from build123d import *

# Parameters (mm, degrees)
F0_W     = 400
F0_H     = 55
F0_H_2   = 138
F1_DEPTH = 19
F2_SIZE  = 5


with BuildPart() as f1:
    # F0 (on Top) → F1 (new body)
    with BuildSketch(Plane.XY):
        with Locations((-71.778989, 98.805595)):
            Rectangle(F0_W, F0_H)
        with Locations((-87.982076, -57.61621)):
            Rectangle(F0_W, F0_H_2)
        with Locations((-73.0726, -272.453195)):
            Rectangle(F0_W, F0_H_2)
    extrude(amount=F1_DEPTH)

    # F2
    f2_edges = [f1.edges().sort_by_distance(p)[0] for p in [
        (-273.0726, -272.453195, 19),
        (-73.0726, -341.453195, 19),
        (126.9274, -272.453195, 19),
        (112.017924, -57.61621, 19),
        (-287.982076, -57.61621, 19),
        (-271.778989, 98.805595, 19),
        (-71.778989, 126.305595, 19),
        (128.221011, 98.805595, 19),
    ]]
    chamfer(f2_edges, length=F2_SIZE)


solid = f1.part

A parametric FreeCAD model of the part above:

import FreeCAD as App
import Part
import Sketcher

V = App.Vector


def edges_at(feature, points):
    """Names of the edges that pass closest to the given points."""
    edges = feature.Shape.Edges
    near = lambda p: min(range(len(edges)), key=lambda i: edges[i].distToShape(Part.Vertex(*p))[0])
    return sorted({f"Edge{near(p) + 1}" for p in points})


def add_polygon(sketch, points):
    """Adds a closed chain of lines whose ends are joined by coincident constraints."""
    first, n = sketch.GeometryCount, len(points)
    for a, b in zip(points, points[1:] + points[:1]):
        sketch.addGeometry(Part.LineSegment(App.Vector(*a, 0), App.Vector(*b, 0)), False)
    for i in range(n):
        sketch.addConstraint(Sketcher.Constraint("Coincident", first + i, 2, first + (i + 1) % n, 1))

doc = App.newDocument("Part")
body = doc.addObject("PartDesign::Body", "Body")
body.AllowCompound = True

# Sketch on XY plane
sketch1 = body.newObject("Sketcher::SketchObject", "Sketch")
sketch1.AttachmentSupport = (doc.getObject("XY_Plane"), [""])
sketch1.MapMode = "FlatFace"
add_polygon(sketch1, [(-272, 126), (-272, 71), (128, 71), (128, 126)])  # lines 0-3
add_polygon(sketch1, [(-288, 11), (-288, -127), (112, -127), (112, 11)])  # lines 4-7
add_polygon(sketch1, [(-273, -203), (-273, -341), (127, -341), (127, -203)])  # lines 8-11
sketch1.addConstraint(Sketcher.Constraint("Vertical", 0))
sketch1.addConstraint(Sketcher.Constraint("Horizontal", 1))
sketch1.addConstraint(Sketcher.Constraint("Vertical", 2))
sketch1.addConstraint(Sketcher.Constraint("Horizontal", 3))
sketch1.addConstraint(Sketcher.Constraint("Vertical", 4))
sketch1.addConstraint(Sketcher.Constraint("Horizontal", 5))
sketch1.addConstraint(Sketcher.Constraint("Vertical", 6))
sketch1.addConstraint(Sketcher.Constraint("Horizontal", 7))
sketch1.addConstraint(Sketcher.Constraint("Vertical", 8))
sketch1.addConstraint(Sketcher.Constraint("Horizontal", 9))
sketch1.addConstraint(Sketcher.Constraint("Vertical", 10))
sketch1.addConstraint(Sketcher.Constraint("Horizontal", 11))
sketch1.addConstraint(Sketcher.Constraint("Equal", 3, 5))
sketch1.addConstraint(Sketcher.Constraint("Equal", 7, 9))
sketch1.addConstraint(Sketcher.Constraint("Equal", 6, 8))
sketch1.addConstraint(Sketcher.Constraint("DistanceX", 1, 1, 1, 2, 400.0))
sketch1.addConstraint(Sketcher.Constraint("DistanceY", 0, 2, 0, 1, 55.0))
sketch1.addConstraint(Sketcher.Constraint("DistanceY", 4, 2, 4, 1, 138.0))
sketch1.addConstraint(Sketcher.Constraint("DistanceX", 8, 2, -1, 1, 273.0726))
sketch1.addConstraint(Sketcher.Constraint("DistanceX", 0, 2, -1, 1, 271.778989))
sketch1.addConstraint(Sketcher.Constraint("DistanceY", 4, 2, -1, 1, 126.61621))
sketch1.addConstraint(Sketcher.Constraint("DistanceY", 8, 2, 0, 2, 412.75879))
sketch1.addConstraint(Sketcher.Constraint("DistanceY", -1, 1, 0, 2, 71.305595))
sketch1.addConstraint(Sketcher.Constraint("DistanceX", 4, 2, -1, 1, 287.982076))
pad1 = body.newObject("PartDesign::Pad", "Pad")
pad1.Profile = sketch1
pad1.Length = 19
doc.recompute()

chamfer = body.newObject("PartDesign::Chamfer", "Chamfer")
chamfer.Base = (pad1, edges_at(pad1, [
    (-273.073, -272.453, 19),
    (-73.073, -341.453, 19),
    (126.927, -272.453, 19),
    (112.018, -57.616, 19),
    (-287.982, -57.616, 19),
    (-271.779, 98.806, 19),
    (-71.779, 126.306, 19),
    (128.221, 98.806, 19),
]))
chamfer.Size = 5

doc.recompute()
